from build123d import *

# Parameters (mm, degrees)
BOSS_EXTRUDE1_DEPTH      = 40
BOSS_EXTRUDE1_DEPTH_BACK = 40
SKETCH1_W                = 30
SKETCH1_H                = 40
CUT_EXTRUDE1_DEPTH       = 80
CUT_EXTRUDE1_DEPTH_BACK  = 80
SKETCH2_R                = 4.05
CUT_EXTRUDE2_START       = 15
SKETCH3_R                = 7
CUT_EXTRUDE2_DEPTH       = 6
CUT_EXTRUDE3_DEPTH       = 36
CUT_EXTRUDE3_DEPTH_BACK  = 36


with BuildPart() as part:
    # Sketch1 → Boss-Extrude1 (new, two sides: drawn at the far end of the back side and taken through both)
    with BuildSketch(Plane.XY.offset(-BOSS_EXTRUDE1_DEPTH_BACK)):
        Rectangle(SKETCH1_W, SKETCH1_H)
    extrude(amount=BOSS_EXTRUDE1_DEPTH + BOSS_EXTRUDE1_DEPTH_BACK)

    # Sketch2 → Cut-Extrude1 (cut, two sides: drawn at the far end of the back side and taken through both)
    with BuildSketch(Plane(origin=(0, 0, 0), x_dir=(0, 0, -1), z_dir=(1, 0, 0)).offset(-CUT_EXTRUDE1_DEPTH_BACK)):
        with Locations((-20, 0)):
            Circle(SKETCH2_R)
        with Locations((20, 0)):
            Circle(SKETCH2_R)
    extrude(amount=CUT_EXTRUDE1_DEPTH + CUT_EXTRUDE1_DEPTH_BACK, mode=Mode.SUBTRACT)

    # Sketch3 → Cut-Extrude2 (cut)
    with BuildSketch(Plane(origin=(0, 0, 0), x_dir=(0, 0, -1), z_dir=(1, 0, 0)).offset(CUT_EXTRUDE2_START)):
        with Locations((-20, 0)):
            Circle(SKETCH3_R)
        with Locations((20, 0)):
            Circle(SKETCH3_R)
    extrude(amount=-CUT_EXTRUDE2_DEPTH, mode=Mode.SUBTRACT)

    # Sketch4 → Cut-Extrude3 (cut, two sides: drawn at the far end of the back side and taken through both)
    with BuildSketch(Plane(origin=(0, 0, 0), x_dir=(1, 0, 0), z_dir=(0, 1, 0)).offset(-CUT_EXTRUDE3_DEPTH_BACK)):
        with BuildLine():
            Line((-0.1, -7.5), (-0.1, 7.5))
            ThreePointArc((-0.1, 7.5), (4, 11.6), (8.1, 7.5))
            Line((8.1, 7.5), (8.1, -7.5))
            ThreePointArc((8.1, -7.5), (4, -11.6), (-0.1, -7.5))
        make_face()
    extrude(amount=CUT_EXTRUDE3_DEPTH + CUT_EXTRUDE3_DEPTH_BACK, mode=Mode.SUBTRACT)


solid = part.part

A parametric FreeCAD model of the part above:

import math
import FreeCAD as App
import Part
import Sketcher
from FreeCAD import Vector


def add_polygon(sketch, points):
    """Adds a closed chain of lines whose ends are joined by coincident constraints."""
    first, n = sketch.GeometryCount, len(points)
    for a, b in zip(points, points[1:] + points[:1]):
        sketch.addGeometry(Part.LineSegment(App.Vector(*a, 0), App.Vector(*b, 0)), False)
    for i in range(n):
        sketch.addConstraint(Sketcher.Constraint("Coincident", first + i, 2, first + (i + 1) % n, 1))

doc = App.newDocument("Part")
body = doc.addObject("PartDesign::Body", "Body")

# Sketch on XY plane
sketch1 = doc.addObject("Sketcher::SketchObject", "Sketch")
body.addObject(sketch1)
sketch1.AttachmentSupport = (doc.XY_Plane, [""])
sketch1.MapMode = "FlatFace"
add_polygon(sketch1, [(-15, 20), (-15, -20), (15, -20), (15, 20)])  # lines 0-3
sketch1.addConstraint([
    Sketcher.Constraint("Vertical", 0),
    Sketcher.Constraint("Horizontal", 1),
    Sketcher.Constraint("Vertical", 2),
    Sketcher.Constraint("Horizontal", 3),
    Sketcher.Constraint("Symmetric", 0, 2, 2, 2, -1, 1),
    Sketcher.Constraint("DistanceX", 1, 1, 1, 2, 30.0),
    Sketcher.Constraint("DistanceY", 0, 2, 0, 1, 40.0),
])
pad1 = doc.addObject("PartDesign::Pad", "Pad")
body.addObject(pad1)
pad1.Profile = sketch1
pad1.Type = "TwoLengths"
pad1.Length = 40
pad1.Length2 = 40

# Sketch on YZ plane
sketch2 = doc.addObject("Sketcher::SketchObject", "Sketch001")
body.addObject(sketch2)
sketch2.AttachmentSupport = (doc.YZ_Plane, [""])
sketch2.MapMode = "FlatFace"
sketch2.addGeometry([
    Part.Circle(Vector(0, 20, 0), Vector(0, 0, 1), 4.05),
    Part.Circle(Vector(0, -20, 0), Vector(0, 0, 1), 4.05),
], False)
sketch2.addConstraint([
    Sketcher.Constraint("Equal", 0, 1),
    Sketcher.Constraint("Symmetric", 0, 3, 1, 3, -1, 1),
    Sketcher.Constraint("PointOnObject", 0, 3, -2),
    Sketcher.Constraint("Diameter", 0, 8.1),
    Sketcher.Constraint("DistanceY", -1, 1, 0, 3, 20.0),
])
pocket1 = doc.addObject("PartDesign::Pocket", "Pocket")
body.addObject(pocket1)
pocket1.Profile = sketch2
pocket1.Type = "ThroughAll"
pocket1.Midplane = True

# Sketch on YZ plane
sketch3 = doc.addObject("Sketcher::SketchObject", "Sketch002")
body.addObject(sketch3)
sketch3.AttachmentSupport = (doc.YZ_Plane, [""])
sketch3.MapMode = "FlatFace"
sketch3.AttachmentOffset = App.Placement(Vector(0, 0, 15), App.Rotation())
sketch3.addGeometry([
    Part.Circle(Vector(0, 20, 0), Vector(0, 0, 1), 7),
    Part.Circle(Vector(0, -20, 0), Vector(0, 0, 1), 7),
], False)
sketch3.addConstraint([
    Sketcher.Constraint("Equal", 0, 1),
    Sketcher.Constraint("Symmetric", 0, 3, 1, 3, -1, 1),
    Sketcher.Constraint("PointOnObject", 0, 3, -2),
    Sketcher.Constraint("Diameter", 0, 14.0),
    Sketcher.Constraint("DistanceY", -1, 1, 0, 3, 20.0),
])
pocket2 = doc.addObject("PartDesign::Pocket", "Pocket001")
body.addObject(pocket2)
pocket2.Profile = sketch3
pocket2.Length = 6

# Sketch on XZ plane
sketch4 = doc.addObject("Sketcher::SketchObject", "Sketch003")
body.addObject(sketch4)
sketch4.AttachmentSupport = (doc.XZ_Plane, [""])
sketch4.MapMode = "FlatFace"
sketch4.addGeometry([
    Part.LineSegment(Vector(-0.1, -7.5, 0), Vector(-0.1, 7.5, 0)),
    Part.ArcOfCircle(Part.Circle(Vector(4, 7.5, 0), Vector(0, 0, 1), 4.1), math.radians(0), math.radians(180)),
    Part.LineSegment(Vector(8.1, 7.5, 0), Vector(8.1, -7.5, 0)),
    Part.ArcOfCircle(Part.Circle(Vector(4, -7.5, 0), Vector(0, 0, 1), 4.1), math.radians(180), math.radians(360)),
], False)
sketch4.addConstraint([
    Sketcher.Constraint("Tangent", 0, 2, 1, 2),
    Sketcher.Constraint("Tangent", 1, 1, 2, 1),
    Sketcher.Constraint("Tangent", 2, 2, 3, 2),
    Sketcher.Constraint("Tangent", 3, 1, 0, 1),
    Sketcher.Constraint("Vertical", 0),
    Sketcher.Constraint("Vertical", 2),
    Sketcher.Constraint("Radius", 1, 4.1),
    Sketcher.Constraint("DistanceY", 0, 1, 0, 2, 15.0),
    Sketcher.Constraint("DistanceX", -1, 1, 1, 3, 4.0),
    Sketcher.Constraint("DistanceY", -1, 1, 1, 3, 7.5),
])
pocket3 = doc.addObject("PartDesign::Pocket", "Pocket002")
body.addObject(pocket3)
pocket3.Profile = sketch4
pocket3.Type = "ThroughAll"
pocket3.Midplane = True

doc.recompute()
